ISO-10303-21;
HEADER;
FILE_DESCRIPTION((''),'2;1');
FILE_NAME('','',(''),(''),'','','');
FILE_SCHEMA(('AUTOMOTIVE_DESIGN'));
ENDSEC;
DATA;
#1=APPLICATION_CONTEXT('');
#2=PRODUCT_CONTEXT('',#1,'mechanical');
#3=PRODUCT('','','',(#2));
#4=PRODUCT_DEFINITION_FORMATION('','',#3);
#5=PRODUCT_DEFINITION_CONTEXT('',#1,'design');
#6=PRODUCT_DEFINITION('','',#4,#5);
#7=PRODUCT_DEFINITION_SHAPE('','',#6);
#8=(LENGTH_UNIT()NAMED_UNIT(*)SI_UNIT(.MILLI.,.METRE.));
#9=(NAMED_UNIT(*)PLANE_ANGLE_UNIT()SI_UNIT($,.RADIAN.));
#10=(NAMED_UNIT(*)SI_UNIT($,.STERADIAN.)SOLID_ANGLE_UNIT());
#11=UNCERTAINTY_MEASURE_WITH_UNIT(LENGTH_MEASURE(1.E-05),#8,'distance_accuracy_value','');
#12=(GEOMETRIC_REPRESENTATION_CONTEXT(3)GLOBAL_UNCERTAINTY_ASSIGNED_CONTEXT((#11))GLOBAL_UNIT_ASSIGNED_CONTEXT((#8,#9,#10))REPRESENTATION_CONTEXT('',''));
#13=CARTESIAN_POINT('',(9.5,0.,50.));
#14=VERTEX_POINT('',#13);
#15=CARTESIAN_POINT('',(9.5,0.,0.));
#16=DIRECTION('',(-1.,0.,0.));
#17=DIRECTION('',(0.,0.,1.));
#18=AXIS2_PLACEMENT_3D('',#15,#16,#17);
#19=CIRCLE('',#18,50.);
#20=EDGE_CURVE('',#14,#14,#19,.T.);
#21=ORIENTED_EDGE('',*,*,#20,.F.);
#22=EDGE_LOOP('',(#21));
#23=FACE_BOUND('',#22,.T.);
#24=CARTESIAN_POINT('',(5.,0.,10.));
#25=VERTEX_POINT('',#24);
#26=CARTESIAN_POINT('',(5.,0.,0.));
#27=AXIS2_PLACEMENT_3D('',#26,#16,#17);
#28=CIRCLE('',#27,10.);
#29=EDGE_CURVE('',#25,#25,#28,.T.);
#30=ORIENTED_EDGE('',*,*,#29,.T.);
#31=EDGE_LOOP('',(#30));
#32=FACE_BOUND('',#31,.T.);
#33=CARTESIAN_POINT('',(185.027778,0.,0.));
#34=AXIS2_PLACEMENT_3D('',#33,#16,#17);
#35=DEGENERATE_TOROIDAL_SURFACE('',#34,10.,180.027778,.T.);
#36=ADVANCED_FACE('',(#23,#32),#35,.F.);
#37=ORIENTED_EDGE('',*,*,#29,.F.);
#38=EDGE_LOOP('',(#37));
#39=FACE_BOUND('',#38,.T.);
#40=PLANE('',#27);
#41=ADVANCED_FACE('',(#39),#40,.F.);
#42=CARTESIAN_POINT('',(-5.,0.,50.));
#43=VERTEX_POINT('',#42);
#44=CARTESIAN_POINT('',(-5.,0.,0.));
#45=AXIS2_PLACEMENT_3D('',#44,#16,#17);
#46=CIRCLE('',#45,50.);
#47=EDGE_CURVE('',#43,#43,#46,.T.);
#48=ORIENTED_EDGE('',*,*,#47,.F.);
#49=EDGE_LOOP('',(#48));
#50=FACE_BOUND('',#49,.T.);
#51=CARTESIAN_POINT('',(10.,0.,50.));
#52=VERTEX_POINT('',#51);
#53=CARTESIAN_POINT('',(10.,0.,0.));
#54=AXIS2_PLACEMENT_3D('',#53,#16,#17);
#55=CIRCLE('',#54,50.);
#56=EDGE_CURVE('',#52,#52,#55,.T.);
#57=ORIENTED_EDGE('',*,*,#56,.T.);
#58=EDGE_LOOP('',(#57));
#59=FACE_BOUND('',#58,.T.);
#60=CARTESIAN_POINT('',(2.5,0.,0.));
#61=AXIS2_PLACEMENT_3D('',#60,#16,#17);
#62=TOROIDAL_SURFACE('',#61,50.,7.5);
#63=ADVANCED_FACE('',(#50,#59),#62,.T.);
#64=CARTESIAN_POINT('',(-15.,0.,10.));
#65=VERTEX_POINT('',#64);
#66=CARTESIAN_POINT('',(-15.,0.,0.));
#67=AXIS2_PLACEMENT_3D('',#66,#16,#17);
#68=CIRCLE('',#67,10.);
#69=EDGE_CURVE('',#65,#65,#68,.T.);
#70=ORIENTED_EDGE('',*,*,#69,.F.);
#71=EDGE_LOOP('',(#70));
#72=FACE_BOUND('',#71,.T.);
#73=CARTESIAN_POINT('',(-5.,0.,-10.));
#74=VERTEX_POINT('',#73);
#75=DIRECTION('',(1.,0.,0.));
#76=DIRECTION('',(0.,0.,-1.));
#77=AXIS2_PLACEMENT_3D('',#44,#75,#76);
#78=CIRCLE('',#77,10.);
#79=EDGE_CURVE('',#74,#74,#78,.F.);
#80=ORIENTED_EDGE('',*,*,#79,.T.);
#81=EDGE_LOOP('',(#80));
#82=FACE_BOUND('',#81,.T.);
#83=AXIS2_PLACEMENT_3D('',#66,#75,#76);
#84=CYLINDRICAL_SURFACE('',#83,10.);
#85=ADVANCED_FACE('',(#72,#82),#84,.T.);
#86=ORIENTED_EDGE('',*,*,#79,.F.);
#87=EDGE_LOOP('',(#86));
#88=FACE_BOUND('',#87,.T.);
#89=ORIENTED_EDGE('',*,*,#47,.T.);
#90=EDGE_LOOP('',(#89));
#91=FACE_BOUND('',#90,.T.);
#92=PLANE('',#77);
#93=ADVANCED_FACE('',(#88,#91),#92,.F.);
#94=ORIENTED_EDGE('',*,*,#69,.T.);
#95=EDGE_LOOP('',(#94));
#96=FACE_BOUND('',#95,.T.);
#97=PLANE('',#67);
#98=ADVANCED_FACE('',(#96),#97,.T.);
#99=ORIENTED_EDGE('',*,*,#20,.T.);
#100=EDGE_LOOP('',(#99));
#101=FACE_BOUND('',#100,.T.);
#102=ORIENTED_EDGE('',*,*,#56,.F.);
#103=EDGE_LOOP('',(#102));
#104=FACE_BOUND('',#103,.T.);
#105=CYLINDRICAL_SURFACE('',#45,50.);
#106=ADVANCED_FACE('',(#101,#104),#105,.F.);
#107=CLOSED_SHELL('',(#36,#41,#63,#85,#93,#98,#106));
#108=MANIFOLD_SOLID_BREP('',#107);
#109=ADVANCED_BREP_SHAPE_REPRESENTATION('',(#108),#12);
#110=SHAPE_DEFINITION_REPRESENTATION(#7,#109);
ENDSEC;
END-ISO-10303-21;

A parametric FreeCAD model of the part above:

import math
import FreeCAD as App
import Part
import Sketcher

V = App.Vector
Q = App.Units.Quantity

doc = App.newDocument("Part")
body = doc.addObject("PartDesign::Body", "Body")

# Sketch on XY plane
sketch1 = body.newObject("Sketcher::SketchObject", "Sketch")
sketch1.AttachmentSupport = (doc.getObject("XY_Plane"), [""])
sketch1.MapMode = "FlatFace"
sketch1.addGeometry(Part.LineSegment(V(-5, 0, 0), V(5, 0, 0)), False)
sketch1.addGeometry(Part.LineSegment(V(5, 0, 0), V(5, 10, 0)), False)
sketch1.addGeometry(Part.ArcOfCircle(Part.Circle(V(185, 10, 0), V(0, 0, 1), 180), math.radians(167.16), math.radians(180)), False)
sketch1.addGeometry(Part.LineSegment(V(9.5, 50, 0), V(10, 50, 0)), False)
sketch1.addGeometry(Part.ArcOfCircle(Part.Circle(V(2.5, 50, 0), V(0, 0, 1), 7.5), math.radians(0), math.radians(180)), False)
sketch1.addGeometry(Part.LineSegment(V(-5, 50, 0), V(-5, 0, 0)), False)
sketch1.addConstraint(Sketcher.Constraint("Coincident", 0, 2, 1, 1))
sketch1.addConstraint(Sketcher.Constraint("Tangent", 1, 2, 2, 2))
sketch1.addConstraint(Sketcher.Constraint("Coincident", 2, 1, 3, 1))
sketch1.addConstraint(Sketcher.Constraint("Coincident", 3, 2, 4, 1))
sketch1.addConstraint(Sketcher.Constraint("Tangent", 4, 2, 5, 1))
sketch1.addConstraint(Sketcher.Constraint("Coincident", 5, 2, 0, 1))
sketch1.addConstraint(Sketcher.Constraint("Horizontal", 0))
sketch1.addConstraint(Sketcher.Constraint("Vertical", 1))
sketch1.addConstraint(Sketcher.Constraint("Horizontal", 3))
sketch1.addConstraint(Sketcher.Constraint("Vertical", 5))
sketch1.addConstraint(Sketcher.Constraint("Symmetric", 0, 2, 5, 2, -1, 1))
sketch1.addConstraint(Sketcher.Constraint("Horizontal", 4, 3, 2, 1))
sketch1.addConstraint(Sketcher.Constraint("Equal", 0, 1))
sketch1.addConstraint(Sketcher.Constraint("Radius", 4, Q("7.5 mm")))
sketch1.addConstraint(Sketcher.Constraint("DistanceX", 0, 1, 0, 2, Q("10 mm")))
sketch1.addConstraint(Sketcher.Constraint("DistanceY", 5, 2, 5, 1, Q("50 mm")))
sketch1.addConstraint(Sketcher.Constraint("DistanceX", 3, 1, 3, 2, Q("0.5 mm")))
revolution = body.newObject("PartDesign::Revolution", "Revolution")
revolution.Profile = sketch1
revolution.ReferenceAxis = (sketch1, ["H_Axis"])
revolution.Angle = 360

# Sketch on YZ plane
sketch2 = body.newObject("Sketcher::SketchObject", "Sketch001")
sketch2.AttachmentSupport = (doc.getObject("YZ_Plane"), [""])
sketch2.MapMode = "FlatFace"
sketch2.AttachmentOffset = App.Placement(V(0, 0, -5), App.Rotation())
sketch2.addGeometry(Part.Circle(V(0, 0, 0), V(0, 0, 1), 10), False)
sketch2.addConstraint(Sketcher.Constraint("Coincident", 0, 3, -1, 1))
sketch2.addConstraint(Sketcher.Constraint("Diameter", 0, Q("20 mm")))
pad1 = body.newObject("PartDesign::Pad", "Pad")
pad1.Profile = sketch2
pad1.Length = 10
pad1.Reversed = True

doc.recompute()
